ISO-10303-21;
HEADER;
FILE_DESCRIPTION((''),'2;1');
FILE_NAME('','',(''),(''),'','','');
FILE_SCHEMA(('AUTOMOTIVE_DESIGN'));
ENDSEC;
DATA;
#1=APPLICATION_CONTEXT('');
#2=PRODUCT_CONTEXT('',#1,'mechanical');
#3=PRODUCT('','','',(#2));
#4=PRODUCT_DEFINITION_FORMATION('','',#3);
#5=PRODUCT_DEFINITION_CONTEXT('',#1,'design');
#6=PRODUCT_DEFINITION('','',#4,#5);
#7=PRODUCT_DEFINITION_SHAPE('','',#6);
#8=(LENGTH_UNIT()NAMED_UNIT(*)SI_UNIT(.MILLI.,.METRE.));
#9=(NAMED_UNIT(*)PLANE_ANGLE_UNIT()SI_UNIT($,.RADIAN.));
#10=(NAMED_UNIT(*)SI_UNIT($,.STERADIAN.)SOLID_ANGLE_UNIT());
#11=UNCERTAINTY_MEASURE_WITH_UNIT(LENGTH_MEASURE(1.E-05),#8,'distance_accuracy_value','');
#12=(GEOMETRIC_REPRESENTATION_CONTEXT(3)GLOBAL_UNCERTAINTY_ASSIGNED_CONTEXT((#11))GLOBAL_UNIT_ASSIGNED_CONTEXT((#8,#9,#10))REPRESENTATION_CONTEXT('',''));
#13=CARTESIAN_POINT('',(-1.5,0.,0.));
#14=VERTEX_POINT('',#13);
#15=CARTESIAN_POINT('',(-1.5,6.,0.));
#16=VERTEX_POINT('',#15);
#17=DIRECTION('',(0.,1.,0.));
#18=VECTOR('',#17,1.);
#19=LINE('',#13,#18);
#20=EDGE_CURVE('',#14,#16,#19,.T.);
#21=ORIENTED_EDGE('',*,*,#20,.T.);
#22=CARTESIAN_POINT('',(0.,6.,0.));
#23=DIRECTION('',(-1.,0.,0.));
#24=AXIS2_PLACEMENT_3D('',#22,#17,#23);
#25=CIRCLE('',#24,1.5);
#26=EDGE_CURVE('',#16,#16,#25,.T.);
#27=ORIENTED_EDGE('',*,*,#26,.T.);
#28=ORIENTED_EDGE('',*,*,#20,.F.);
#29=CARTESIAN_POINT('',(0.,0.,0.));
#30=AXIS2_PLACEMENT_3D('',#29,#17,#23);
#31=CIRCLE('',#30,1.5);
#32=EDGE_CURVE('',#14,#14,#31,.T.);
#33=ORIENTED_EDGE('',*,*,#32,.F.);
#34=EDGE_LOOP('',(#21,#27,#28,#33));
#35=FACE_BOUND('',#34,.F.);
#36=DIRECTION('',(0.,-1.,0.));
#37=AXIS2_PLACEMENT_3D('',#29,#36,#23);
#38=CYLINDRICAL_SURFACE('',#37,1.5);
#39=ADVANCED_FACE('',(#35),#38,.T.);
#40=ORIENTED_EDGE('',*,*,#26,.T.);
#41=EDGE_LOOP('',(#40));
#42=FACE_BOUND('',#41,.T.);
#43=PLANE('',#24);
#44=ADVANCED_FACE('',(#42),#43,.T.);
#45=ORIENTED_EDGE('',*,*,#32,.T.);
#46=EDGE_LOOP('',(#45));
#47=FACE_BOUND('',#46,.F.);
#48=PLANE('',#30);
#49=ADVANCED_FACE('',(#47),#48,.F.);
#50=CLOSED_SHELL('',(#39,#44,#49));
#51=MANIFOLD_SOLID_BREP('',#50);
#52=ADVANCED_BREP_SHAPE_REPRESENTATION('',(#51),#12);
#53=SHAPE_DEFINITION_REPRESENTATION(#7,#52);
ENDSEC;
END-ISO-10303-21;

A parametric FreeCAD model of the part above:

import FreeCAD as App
import Part
import Sketcher

V = App.Vector
Q = App.Units.Quantity

doc = App.newDocument("Part")
body = doc.addObject("PartDesign::Body", "Body")

# Sketch on XZ plane
sketch1 = body.newObject("Sketcher::SketchObject", "Sketch")
sketch1.AttachmentSupport = (doc.getObject("XZ_Plane"), [""])
sketch1.MapMode = "FlatFace"
sketch1.addGeometry(Part.Circle(V(0, 0, 0), V(0, 0, 1), 1.5), False)
sketch1.addConstraint([
    Sketcher.Constraint("Coincident", 0, 3, -1, 1),
    Sketcher.Constraint("Diameter", 0, Q("3 mm")),
])
pad1 = body.newObject("PartDesign::Pad", "Pad")
pad1.Profile = sketch1
pad1.Length = 6
pad1.Reversed = True

doc.recompute()
